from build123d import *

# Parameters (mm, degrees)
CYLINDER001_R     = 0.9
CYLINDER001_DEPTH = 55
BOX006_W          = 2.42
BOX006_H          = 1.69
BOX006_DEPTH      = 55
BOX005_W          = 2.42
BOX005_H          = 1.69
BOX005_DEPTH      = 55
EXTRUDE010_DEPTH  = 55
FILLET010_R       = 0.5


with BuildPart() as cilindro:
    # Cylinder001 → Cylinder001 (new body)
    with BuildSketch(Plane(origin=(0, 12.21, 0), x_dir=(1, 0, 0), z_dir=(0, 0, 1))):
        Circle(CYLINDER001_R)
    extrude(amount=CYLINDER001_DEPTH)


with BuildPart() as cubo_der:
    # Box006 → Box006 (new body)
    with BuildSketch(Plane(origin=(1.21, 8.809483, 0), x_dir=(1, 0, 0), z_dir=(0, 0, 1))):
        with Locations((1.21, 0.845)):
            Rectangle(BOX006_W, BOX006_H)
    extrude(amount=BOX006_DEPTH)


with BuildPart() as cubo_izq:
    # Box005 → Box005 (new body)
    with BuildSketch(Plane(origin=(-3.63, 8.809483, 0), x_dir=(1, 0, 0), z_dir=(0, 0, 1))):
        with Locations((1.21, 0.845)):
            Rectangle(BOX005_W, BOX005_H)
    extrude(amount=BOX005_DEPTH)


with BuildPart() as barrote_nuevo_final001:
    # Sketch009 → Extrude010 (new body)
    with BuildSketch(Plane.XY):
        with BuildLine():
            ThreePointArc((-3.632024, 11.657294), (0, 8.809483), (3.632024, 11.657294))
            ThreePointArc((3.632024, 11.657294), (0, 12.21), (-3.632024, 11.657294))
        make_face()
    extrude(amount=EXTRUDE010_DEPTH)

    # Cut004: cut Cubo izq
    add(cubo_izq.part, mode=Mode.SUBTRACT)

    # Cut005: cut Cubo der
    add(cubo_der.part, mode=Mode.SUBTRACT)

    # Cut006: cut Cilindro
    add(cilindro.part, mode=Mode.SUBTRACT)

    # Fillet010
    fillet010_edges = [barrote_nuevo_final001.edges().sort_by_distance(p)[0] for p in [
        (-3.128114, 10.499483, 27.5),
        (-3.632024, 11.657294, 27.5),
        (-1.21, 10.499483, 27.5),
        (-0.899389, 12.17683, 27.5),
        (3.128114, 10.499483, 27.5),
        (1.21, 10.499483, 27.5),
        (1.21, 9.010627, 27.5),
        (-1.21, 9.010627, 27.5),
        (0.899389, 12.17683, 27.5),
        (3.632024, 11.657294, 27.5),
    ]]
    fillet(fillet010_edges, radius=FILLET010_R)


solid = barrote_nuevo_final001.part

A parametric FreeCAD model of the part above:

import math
import FreeCAD as App
import Part
import Sketcher
from FreeCAD import Vector
Q = App.Units.Quantity


def edges_at(feature, points):
    """Names of the edges that pass closest to the given points."""
    edges = feature.Shape.Edges
    near = lambda p: min(range(len(edges)), key=lambda i: edges[i].distToShape(Part.Vertex(*p))[0])
    return sorted({f"Edge{near(p) + 1}" for p in points})


def add_polygon(sketch, points):
    """Adds a closed chain of lines whose ends are joined by coincident constraints."""
    first, n = sketch.GeometryCount, len(points)
    for a, b in zip(points, points[1:] + points[:1]):
        sketch.addGeometry(Part.LineSegment(App.Vector(*a, 0), App.Vector(*b, 0)), False)
    for i in range(n):
        sketch.addConstraint(Sketcher.Constraint("Coincident", first + i, 2, first + (i + 1) % n, 1))

doc = App.newDocument("Part")
params = doc.addObject("Spreadsheet::Sheet", "Params")
for row, (alias, value) in enumerate([
    ("sketch1_diameter", "1.8 mm"),
    ("pad1_length", "55 mm"),
    ("sketch2_width", "2.42 mm"),
    ("sketch2_height", "1.69 mm"),
    ("pad2_length", "55 mm"),
    ("sketch3_width", "2.42 mm"),
    ("sketch3_height", "1.69 mm"),
    ("pad3_length", "55 mm"),
    ("sketch4_radius", "3.74 mm"),
    ("sketch4_radius2", "12.210002 mm"),
    ("pad4_length", "55 mm"),
    ("fillet_radius", "0.5 mm"),
], start=1):
    params.set(f"A{row}", alias)
    params.set(f"B{row}", "=" + value)
    params.setAlias(f"B{row}", alias)

body = doc.addObject("PartDesign::Body", "Body")

# Sketch on XY plane
sketch1 = doc.addObject("Sketcher::SketchObject", "Sketch")
body.addObject(sketch1)
sketch1.AttachmentSupport = (doc.XY_Plane, [""])
sketch1.MapMode = "FlatFace"
sketch1.addGeometry(Part.Circle(Vector(0, 12.2, 0), Vector(0, 0, 1), 0.9), False)
sketch1.addConstraint(Sketcher.Constraint("PointOnObject", 0, 3, -2))
sketch1.addConstraint(Sketcher.Constraint("Diameter", 0, Q("1.8 mm")))
sketch1.addConstraint(Sketcher.Constraint("DistanceY", -1, 1, 0, 3, Q("12.21 mm")))
sketch1.setExpression("Constraints[1]", "Params.sketch1_diameter")
pad1 = doc.addObject("PartDesign::Pad", "Pad")
body.addObject(pad1)
pad1.Profile = sketch1
pad1.setExpression("Length", "Params.pad1_length")
body2 = doc.addObject("PartDesign::Body", "Body001")

# Sketch on XY plane
sketch2 = doc.addObject("Sketcher::SketchObject", "Sketch001")
body2.addObject(sketch2)
sketch2.AttachmentSupport = (doc.getObject("XY_Plane001"), [""])
sketch2.MapMode = "FlatFace"
add_polygon(sketch2, [(1.2, 10.5), (1.2, 8.8), (3.6, 8.8), (3.6, 10.5)])  # lines 0-3
sketch2.addConstraint(Sketcher.Constraint("Vertical", 0))
sketch2.addConstraint(Sketcher.Constraint("Horizontal", 1))
sketch2.addConstraint(Sketcher.Constraint("Vertical", 2))
sketch2.addConstraint(Sketcher.Constraint("Horizontal", 3))
sketch2.addConstraint(Sketcher.Constraint("DistanceX", 1, 1, 1, 2, Q("2.42 mm")))
sketch2.addConstraint(Sketcher.Constraint("DistanceY", 0, 2, 0, 1, Q("1.69 mm")))
sketch2.addConstraint(Sketcher.Constraint("DistanceX", -1, 1, 0, 2, Q("1.21 mm")))
sketch2.addConstraint(Sketcher.Constraint("DistanceY", -1, 1, 0, 2, Q("8.809483 mm")))
sketch2.setExpression("Constraints[8]", "Params.sketch2_width")
sketch2.setExpression("Constraints[9]", "Params.sketch2_height")
pad2 = doc.addObject("PartDesign::Pad", "Pad001")
body2.addObject(pad2)
pad2.Profile = sketch2
pad2.setExpression("Length", "Params.pad2_length")
body3 = doc.addObject("PartDesign::Body", "Body002")

# Sketch on XY plane
sketch3 = doc.addObject("Sketcher::SketchObject", "Sketch002")
body3.addObject(sketch3)
sketch3.AttachmentSupport = (doc.getObject("XY_Plane002"), [""])
sketch3.MapMode = "FlatFace"
add_polygon(sketch3, [(-3.6, 10.5), (-3.6, 8.8), (-1.2, 8.8), (-1.2, 10.5)])  # lines 0-3
sketch3.addConstraint(Sketcher.Constraint("Vertical", 0))
sketch3.addConstraint(Sketcher.Constraint("Horizontal", 1))
sketch3.addConstraint(Sketcher.Constraint("Vertical", 2))
sketch3.addConstraint(Sketcher.Constraint("Horizontal", 3))
sketch3.addConstraint(Sketcher.Constraint("DistanceX", 1, 1, 1, 2, Q("2.42 mm")))
sketch3.addConstraint(Sketcher.Constraint("DistanceY", 0, 2, 0, 1, Q("1.69 mm")))
sketch3.addConstraint(Sketcher.Constraint("DistanceX", 0, 2, -1, 1, Q("3.63 mm")))
sketch3.addConstraint(Sketcher.Constraint("DistanceY", -1, 1, 0, 2, Q("8.809483 mm")))
sketch3.setExpression("Constraints[8]", "Params.sketch3_width")
sketch3.setExpression("Constraints[9]", "Params.sketch3_height")
pad3 = doc.addObject("PartDesign::Pad", "Pad002")
body3.addObject(pad3)
pad3.Profile = sketch3
pad3.setExpression("Length", "Params.pad3_length")
body4 = doc.addObject("PartDesign::Body", "Body003")

# Sketch on XY plane
sketch4 = doc.addObject("Sketcher::SketchObject", "Sketch003")
body4.addObject(sketch4)
sketch4.AttachmentSupport = (doc.getObject("XY_Plane003"), [""])
sketch4.MapMode = "FlatFace"
sketch4.addGeometry(Part.ArcOfCircle(Part.Circle(Vector(0, 12.5, 0), Vector(0, 0, 1), 3.7), math.radians(-166), math.radians(-14)), False)
sketch4.addGeometry(Part.ArcOfCircle(Part.Circle(Vector(0, 0, 0), Vector(0, 0, 1), 12.2), math.radians(73), math.radians(107)), False)
sketch4.addConstraint(Sketcher.Constraint("Coincident", 0, 1, 1, 2))
sketch4.addConstraint(Sketcher.Constraint("Coincident", 1, 1, 0, 2))
sketch4.addConstraint(Sketcher.Constraint("Coincident", 1, 3, -1, 1))
sketch4.addConstraint(Sketcher.Constraint("PointOnObject", 0, 3, -2))
sketch4.addConstraint(Sketcher.Constraint("Radius", 0, Q("3.74 mm")))
sketch4.addConstraint(Sketcher.Constraint("Radius", 1, Q("12.210002 mm")))
sketch4.addConstraint(Sketcher.Constraint("DistanceY", 0, 1, 0, 3, Q("0.892189 mm")))
sketch4.setExpression("Constraints[4]", "Params.sketch4_radius")
sketch4.setExpression("Constraints[5]", "Params.sketch4_radius2")
pad4 = doc.addObject("PartDesign::Pad", "Pad003")
body4.addObject(pad4)
pad4.Profile = sketch4
pad4.setExpression("Length", "Params.pad4_length")
doc.recompute()

boolean = doc.addObject("PartDesign::Boolean", "Boolean")
body4.addObject(boolean)
boolean.Type = "Cut"
boolean.addObjects([body3])
doc.recompute()

boolean2 = doc.addObject("PartDesign::Boolean", "Boolean001")
body4.addObject(boolean2)
boolean2.Type = "Cut"
boolean2.addObjects([body2])
doc.recompute()

boolean3 = doc.addObject("PartDesign::Boolean", "Boolean002")
body4.addObject(boolean3)
boolean3.Type = "Cut"
boolean3.addObjects([body])
doc.recompute()

fillet = doc.addObject("PartDesign::Fillet", "Fillet")
body4.addObject(fillet)
fillet.Base = (boolean3, edges_at(boolean3, [
    (-3.128, 10.499, 27.5),
    (-3.632, 11.657, 27.5),
    (-1.21, 10.499, 27.5),
    (-0.899, 12.177, 27.5),
    (3.128, 10.499, 27.5),
    (1.21, 10.499, 27.5),
    (1.21, 9.011, 27.5),
    (-1.21, 9.011, 27.5),
    (0.899, 12.177, 27.5),
    (3.632, 11.657, 27.5),
]))
fillet.setExpression("Radius", "Params.fillet_radius")

doc.recompute()
